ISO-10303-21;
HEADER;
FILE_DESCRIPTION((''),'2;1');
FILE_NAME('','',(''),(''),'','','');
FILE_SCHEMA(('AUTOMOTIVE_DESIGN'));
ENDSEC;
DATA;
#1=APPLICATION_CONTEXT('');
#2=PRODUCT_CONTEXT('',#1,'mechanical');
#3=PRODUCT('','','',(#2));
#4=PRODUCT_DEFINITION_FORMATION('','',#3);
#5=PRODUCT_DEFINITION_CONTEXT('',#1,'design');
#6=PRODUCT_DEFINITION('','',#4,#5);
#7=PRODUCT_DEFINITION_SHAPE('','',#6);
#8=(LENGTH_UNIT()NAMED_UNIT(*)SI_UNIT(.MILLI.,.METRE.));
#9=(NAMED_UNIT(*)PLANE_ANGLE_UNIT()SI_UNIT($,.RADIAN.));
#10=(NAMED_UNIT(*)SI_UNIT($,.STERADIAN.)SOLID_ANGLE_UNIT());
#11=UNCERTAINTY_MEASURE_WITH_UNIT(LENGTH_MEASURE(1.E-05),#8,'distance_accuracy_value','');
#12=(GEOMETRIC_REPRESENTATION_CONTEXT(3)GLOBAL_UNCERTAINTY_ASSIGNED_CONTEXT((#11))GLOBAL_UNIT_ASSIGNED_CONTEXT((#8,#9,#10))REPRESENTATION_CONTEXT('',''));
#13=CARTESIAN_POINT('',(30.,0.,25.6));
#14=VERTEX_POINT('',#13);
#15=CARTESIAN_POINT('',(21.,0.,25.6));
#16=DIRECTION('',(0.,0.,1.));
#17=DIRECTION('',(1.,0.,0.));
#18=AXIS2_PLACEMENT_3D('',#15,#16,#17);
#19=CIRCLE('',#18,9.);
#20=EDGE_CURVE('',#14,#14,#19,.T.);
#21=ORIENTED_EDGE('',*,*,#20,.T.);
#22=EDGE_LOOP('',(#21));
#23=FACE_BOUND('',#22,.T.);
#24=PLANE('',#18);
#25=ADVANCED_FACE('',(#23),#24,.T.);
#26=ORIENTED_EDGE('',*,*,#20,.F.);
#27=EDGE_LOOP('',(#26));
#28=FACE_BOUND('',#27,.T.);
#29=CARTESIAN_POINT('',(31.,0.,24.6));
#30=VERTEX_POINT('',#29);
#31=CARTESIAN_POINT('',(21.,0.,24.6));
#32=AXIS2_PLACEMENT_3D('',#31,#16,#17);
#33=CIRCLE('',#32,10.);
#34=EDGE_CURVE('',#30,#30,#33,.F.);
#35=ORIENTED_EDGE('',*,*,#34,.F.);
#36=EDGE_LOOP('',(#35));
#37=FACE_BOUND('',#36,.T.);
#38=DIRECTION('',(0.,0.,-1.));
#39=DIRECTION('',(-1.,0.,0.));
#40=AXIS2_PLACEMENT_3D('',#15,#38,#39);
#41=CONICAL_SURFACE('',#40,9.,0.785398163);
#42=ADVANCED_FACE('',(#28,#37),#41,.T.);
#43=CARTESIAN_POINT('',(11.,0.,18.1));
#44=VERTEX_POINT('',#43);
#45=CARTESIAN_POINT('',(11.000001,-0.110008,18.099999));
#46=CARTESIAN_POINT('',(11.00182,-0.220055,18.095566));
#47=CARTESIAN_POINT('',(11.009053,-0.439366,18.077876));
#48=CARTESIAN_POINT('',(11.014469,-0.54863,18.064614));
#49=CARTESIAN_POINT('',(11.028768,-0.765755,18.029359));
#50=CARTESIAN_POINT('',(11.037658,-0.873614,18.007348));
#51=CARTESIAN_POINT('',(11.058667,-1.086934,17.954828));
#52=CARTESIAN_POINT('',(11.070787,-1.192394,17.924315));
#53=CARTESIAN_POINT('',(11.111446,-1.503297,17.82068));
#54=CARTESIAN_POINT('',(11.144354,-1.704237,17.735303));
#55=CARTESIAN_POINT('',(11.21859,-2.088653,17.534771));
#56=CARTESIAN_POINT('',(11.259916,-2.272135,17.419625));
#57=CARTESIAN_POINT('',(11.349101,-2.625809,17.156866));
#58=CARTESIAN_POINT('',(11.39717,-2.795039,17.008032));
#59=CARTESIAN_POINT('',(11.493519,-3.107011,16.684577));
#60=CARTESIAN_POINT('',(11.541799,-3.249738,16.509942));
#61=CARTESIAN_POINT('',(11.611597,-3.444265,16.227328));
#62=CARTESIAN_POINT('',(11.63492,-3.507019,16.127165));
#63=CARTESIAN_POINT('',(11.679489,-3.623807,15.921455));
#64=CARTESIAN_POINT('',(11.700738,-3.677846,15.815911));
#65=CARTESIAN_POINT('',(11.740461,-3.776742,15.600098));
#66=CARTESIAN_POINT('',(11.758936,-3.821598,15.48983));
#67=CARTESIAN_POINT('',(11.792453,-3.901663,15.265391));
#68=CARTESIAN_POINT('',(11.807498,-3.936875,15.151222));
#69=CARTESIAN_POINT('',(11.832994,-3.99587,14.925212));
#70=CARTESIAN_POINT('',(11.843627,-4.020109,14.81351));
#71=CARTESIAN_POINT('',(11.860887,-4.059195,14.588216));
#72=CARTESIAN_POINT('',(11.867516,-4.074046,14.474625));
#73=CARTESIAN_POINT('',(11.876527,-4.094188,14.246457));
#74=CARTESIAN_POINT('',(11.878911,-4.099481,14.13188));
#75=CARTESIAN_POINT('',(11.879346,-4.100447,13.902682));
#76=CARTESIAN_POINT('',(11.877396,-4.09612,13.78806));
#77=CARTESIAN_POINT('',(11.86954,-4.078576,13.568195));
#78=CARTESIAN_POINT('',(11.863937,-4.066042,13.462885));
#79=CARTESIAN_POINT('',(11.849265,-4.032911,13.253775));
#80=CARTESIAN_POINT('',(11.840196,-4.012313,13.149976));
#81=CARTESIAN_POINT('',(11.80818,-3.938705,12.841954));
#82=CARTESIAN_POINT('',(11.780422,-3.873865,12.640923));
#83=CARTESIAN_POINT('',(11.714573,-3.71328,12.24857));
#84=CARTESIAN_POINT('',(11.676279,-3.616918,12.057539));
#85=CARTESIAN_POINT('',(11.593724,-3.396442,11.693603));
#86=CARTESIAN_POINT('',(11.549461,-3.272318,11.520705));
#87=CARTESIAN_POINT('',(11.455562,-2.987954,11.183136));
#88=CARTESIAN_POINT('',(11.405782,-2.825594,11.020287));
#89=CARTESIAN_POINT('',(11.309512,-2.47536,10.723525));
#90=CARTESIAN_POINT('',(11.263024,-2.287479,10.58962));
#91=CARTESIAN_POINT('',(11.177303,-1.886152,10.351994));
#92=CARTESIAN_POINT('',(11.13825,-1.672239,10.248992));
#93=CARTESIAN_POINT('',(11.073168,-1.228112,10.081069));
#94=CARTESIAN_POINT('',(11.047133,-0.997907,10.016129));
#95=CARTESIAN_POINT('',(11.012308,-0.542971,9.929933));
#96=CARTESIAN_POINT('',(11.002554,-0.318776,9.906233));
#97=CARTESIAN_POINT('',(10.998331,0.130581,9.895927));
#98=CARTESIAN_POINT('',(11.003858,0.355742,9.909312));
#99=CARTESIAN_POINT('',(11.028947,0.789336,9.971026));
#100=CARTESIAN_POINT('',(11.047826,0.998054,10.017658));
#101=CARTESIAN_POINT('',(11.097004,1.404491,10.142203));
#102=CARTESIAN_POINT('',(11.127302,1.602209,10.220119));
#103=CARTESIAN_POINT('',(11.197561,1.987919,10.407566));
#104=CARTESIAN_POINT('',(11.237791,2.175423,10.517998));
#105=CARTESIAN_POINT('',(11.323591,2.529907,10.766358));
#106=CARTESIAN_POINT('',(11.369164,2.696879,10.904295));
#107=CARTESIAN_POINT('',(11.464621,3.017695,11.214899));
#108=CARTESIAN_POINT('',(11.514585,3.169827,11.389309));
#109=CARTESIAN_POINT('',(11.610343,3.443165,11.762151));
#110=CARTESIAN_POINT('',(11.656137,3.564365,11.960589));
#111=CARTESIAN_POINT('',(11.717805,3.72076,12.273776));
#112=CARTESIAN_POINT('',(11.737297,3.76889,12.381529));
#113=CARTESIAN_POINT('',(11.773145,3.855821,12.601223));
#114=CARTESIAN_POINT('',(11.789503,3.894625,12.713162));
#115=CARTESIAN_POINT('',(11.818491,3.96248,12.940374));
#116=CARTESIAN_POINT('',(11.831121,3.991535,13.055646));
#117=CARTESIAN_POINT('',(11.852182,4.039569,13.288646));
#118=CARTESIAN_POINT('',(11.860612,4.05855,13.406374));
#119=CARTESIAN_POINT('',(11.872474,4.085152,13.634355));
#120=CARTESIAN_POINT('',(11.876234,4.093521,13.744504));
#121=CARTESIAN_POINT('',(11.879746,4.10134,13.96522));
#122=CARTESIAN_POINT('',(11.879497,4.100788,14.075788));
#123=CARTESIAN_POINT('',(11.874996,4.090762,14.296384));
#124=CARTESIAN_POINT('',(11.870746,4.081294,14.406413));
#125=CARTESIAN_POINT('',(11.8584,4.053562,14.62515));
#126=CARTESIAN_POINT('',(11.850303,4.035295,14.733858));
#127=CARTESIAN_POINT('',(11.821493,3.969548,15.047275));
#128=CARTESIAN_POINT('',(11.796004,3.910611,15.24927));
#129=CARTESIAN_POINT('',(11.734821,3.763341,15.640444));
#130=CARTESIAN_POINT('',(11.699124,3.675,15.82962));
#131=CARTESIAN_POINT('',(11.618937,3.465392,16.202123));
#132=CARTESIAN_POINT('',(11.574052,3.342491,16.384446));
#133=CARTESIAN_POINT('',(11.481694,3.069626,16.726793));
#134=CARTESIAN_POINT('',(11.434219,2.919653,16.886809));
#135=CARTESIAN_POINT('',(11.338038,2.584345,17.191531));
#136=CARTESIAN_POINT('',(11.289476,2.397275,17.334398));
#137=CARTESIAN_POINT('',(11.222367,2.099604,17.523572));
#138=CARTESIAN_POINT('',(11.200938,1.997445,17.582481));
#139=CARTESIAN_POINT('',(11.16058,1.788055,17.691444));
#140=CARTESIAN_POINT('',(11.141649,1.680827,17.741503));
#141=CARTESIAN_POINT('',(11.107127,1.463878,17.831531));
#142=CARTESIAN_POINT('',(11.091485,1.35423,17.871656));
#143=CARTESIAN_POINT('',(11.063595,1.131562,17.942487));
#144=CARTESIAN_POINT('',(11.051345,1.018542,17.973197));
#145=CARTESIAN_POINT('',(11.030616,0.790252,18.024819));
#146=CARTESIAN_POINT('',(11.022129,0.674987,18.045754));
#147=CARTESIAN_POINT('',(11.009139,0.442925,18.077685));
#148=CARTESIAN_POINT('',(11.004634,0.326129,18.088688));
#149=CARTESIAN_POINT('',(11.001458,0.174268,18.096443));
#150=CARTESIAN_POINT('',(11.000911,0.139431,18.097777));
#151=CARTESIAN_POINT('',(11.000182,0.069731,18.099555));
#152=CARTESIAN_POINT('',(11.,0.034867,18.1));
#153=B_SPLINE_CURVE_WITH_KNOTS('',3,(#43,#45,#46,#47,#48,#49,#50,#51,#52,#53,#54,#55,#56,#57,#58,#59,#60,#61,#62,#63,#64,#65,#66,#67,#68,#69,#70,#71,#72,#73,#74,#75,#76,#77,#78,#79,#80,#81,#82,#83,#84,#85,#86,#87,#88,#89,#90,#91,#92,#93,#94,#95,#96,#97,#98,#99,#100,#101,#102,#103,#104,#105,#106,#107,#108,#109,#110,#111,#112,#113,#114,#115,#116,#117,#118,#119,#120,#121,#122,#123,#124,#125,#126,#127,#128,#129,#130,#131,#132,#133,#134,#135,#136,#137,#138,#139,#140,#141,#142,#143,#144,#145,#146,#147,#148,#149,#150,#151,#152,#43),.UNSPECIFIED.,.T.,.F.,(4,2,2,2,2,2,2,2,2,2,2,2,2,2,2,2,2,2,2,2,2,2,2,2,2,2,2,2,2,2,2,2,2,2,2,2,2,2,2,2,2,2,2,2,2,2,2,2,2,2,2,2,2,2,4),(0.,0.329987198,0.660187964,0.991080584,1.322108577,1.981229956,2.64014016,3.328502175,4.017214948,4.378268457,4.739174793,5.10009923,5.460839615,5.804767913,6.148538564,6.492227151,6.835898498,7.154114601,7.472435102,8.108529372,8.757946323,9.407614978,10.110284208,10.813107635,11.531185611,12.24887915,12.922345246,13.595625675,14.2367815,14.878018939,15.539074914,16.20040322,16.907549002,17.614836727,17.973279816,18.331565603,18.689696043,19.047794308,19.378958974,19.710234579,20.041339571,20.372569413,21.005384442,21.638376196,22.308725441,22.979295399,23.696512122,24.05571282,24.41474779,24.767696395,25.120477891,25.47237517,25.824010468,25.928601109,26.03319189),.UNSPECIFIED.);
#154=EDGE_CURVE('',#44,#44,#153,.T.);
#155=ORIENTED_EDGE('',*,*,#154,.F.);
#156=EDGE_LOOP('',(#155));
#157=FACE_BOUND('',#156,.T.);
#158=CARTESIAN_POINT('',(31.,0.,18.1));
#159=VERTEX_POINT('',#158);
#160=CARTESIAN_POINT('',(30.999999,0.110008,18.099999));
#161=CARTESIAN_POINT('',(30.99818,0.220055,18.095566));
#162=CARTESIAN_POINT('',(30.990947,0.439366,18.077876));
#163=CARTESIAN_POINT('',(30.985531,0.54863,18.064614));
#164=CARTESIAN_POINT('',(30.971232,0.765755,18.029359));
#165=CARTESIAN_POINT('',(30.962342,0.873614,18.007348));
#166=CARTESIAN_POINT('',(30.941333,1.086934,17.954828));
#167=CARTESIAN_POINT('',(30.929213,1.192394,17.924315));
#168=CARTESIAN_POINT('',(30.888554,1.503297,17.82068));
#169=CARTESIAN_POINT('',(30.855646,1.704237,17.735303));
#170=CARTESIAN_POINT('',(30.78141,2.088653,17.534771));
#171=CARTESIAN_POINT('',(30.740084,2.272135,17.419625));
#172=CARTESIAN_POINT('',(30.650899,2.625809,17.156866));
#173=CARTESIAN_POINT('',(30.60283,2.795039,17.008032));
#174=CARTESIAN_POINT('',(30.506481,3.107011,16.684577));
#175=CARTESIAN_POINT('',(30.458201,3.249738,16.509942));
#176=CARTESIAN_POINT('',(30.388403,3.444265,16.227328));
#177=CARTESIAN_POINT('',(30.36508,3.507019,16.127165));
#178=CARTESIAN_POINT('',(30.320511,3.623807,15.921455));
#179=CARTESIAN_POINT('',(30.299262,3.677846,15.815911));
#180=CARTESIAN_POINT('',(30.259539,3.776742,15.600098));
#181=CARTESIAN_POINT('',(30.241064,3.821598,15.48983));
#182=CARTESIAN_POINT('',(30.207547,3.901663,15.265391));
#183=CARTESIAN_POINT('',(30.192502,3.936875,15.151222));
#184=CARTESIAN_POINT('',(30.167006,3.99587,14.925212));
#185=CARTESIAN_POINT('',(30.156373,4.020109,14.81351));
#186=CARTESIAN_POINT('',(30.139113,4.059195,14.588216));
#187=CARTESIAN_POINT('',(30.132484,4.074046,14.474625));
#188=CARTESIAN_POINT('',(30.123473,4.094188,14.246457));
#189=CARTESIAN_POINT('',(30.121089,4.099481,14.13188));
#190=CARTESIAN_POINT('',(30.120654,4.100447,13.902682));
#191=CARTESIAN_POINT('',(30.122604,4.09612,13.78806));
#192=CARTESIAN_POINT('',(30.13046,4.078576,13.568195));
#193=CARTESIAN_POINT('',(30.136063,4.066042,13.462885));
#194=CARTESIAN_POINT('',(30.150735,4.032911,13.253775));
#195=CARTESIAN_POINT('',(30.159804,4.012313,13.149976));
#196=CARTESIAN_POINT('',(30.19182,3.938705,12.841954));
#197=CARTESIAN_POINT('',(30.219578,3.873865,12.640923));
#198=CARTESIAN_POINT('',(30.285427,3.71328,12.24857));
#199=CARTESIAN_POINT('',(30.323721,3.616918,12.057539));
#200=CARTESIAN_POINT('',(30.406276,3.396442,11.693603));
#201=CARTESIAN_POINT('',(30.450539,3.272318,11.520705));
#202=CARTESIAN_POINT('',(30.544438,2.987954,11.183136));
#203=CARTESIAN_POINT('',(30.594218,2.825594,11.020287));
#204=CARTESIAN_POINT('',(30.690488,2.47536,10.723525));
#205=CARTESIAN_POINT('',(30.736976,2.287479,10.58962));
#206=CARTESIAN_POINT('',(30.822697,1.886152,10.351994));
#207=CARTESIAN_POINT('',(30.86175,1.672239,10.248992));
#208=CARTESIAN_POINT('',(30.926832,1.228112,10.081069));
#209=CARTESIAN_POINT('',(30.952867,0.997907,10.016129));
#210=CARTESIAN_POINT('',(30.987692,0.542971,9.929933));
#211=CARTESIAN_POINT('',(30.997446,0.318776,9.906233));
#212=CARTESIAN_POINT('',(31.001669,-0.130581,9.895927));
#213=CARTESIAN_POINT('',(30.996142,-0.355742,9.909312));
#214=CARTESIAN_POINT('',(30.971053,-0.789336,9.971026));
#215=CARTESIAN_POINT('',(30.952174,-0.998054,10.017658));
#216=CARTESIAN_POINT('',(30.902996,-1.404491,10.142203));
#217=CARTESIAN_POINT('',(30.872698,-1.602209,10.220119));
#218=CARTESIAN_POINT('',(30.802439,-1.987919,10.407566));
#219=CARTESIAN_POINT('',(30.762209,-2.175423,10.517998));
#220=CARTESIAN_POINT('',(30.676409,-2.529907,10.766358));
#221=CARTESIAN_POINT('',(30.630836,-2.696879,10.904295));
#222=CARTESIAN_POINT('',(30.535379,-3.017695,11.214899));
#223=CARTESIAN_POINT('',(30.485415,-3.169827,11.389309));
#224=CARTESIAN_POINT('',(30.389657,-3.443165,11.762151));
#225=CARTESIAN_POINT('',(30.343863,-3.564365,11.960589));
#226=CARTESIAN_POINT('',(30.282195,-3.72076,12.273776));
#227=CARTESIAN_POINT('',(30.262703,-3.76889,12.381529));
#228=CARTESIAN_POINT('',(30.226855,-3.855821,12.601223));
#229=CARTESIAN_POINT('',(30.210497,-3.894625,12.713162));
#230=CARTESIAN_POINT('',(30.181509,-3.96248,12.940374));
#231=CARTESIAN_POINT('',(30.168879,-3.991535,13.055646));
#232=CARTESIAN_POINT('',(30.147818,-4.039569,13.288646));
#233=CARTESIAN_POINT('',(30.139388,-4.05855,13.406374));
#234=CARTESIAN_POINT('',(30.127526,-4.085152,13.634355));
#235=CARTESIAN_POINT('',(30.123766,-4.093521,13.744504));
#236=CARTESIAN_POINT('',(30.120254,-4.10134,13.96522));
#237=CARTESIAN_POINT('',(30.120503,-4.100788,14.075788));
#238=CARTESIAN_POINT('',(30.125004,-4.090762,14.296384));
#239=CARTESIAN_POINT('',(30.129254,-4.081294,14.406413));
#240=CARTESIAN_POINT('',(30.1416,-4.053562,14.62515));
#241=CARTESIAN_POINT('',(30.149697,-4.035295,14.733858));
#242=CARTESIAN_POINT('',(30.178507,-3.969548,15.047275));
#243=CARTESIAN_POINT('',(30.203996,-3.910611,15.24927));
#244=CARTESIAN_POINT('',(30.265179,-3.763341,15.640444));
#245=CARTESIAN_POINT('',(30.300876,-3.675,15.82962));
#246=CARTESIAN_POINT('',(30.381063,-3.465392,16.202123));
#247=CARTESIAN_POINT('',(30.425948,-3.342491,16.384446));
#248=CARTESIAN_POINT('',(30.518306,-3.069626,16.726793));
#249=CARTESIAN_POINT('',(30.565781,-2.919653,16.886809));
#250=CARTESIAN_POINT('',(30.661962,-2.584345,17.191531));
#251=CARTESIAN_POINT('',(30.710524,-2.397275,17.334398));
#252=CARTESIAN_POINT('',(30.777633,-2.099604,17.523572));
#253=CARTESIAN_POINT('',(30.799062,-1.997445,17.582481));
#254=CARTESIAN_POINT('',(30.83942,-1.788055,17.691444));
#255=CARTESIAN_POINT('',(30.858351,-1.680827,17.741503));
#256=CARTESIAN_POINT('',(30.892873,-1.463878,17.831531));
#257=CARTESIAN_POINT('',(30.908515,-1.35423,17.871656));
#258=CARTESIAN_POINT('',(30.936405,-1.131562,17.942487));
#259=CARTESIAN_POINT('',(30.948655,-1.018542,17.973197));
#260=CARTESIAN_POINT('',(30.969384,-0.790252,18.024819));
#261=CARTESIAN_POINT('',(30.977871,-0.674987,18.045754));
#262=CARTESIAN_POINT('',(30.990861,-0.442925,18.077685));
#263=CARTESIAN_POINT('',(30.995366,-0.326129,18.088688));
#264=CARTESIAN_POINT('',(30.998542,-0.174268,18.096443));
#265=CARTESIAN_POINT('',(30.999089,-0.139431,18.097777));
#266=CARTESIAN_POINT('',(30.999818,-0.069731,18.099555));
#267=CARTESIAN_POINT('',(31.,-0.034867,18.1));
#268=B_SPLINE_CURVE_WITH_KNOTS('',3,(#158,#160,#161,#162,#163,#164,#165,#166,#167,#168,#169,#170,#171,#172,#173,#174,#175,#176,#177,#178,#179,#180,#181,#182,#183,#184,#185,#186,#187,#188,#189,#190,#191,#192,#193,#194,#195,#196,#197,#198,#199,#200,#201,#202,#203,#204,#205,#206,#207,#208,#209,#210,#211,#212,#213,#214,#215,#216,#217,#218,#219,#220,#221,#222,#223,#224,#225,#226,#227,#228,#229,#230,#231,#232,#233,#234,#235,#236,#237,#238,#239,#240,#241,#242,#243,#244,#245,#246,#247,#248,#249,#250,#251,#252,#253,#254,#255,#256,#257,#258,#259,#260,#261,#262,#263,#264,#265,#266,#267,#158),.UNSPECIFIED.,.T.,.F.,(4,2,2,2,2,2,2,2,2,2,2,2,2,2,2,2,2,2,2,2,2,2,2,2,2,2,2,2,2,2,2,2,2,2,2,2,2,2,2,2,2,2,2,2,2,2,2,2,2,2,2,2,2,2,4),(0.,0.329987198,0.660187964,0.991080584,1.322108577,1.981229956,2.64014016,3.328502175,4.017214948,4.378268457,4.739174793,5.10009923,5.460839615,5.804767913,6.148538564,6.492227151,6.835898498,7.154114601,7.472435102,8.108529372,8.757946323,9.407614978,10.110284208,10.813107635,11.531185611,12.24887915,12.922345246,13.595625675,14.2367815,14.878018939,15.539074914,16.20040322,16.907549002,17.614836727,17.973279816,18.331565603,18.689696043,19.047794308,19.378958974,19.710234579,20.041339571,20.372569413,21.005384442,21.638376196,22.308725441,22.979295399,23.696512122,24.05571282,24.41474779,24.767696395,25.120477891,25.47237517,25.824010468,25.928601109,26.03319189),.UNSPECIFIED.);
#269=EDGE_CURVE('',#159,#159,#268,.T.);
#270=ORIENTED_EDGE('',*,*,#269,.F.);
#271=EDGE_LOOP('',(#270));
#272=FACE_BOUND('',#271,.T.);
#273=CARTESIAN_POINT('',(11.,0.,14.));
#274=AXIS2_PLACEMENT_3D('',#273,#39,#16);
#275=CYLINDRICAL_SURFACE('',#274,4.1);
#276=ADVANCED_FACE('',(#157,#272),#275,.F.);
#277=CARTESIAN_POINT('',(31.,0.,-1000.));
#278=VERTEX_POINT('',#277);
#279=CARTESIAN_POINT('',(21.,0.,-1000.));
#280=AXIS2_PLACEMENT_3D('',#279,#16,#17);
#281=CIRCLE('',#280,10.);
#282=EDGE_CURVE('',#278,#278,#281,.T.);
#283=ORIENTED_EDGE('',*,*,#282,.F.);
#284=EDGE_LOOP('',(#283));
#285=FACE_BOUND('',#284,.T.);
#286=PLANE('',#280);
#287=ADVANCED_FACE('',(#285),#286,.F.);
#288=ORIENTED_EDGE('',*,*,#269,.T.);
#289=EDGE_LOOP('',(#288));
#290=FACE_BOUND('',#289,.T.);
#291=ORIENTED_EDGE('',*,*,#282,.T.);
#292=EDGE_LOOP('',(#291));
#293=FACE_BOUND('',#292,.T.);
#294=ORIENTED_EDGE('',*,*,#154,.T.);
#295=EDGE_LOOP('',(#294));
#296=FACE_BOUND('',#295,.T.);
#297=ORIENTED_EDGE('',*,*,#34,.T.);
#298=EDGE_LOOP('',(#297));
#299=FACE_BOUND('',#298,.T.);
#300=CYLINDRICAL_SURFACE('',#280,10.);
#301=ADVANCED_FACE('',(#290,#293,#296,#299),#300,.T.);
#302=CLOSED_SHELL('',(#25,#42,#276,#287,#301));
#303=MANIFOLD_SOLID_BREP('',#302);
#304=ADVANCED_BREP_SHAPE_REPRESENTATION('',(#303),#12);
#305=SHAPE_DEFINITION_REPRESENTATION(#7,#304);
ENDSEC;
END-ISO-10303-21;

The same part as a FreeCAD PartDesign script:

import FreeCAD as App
import Part
import Sketcher
from FreeCAD import Vector
Q = App.Units.Quantity


def edges_at(feature, points):
    """Names of the edges that pass closest to the given points."""
    edges = feature.Shape.Edges
    near = lambda p: min(range(len(edges)), key=lambda i: edges[i].distToShape(Part.Vertex(*p))[0])
    return sorted({f"Edge{near(p) + 1}" for p in points})

doc = App.newDocument("Part")
body = doc.addObject("PartDesign::Body", "Body")

# Sketch on XY plane
sketch1 = body.newObject("Sketcher::SketchObject", "Sketch")
sketch1.AttachmentSupport = (doc.getObject("XY_Plane"), [""])
sketch1.MapMode = "FlatFace"
sketch1.addGeometry(Part.Circle(Vector(21, 0, 0), Vector(0, 0, 1), 10), False)
sketch1.addConstraint(Sketcher.Constraint("PointOnObject", 0, 3, -1))
sketch1.addConstraint(Sketcher.Constraint("Diameter", 0, Q("20 mm")))
sketch1.addConstraint(Sketcher.Constraint("DistanceX", -1, 1, 0, 3, Q("21 mm")))
pad1 = body.newObject("PartDesign::Pad", "Pad")
pad1.Profile = sketch1
pad1.Type = "TwoLengths"
pad1.Length = 25.6
pad1.Length2 = 1000

# Sketch on YZ plane
sketch2 = body.newObject("Sketcher::SketchObject", "Sketch001")
sketch2.AttachmentSupport = (doc.getObject("YZ_Plane"), [""])
sketch2.MapMode = "FlatFace"
sketch2.addGeometry(Part.Circle(Vector(0, 14, 0), Vector(0, 0, 1), 4.1), False)
sketch2.addConstraint(Sketcher.Constraint("PointOnObject", 0, 3, -2))
sketch2.addConstraint(Sketcher.Constraint("Diameter", 0, Q("8.2 mm")))
sketch2.addConstraint(Sketcher.Constraint("DistanceY", -1, 1, 0, 3, Q("14 mm")))
pocket1 = body.newObject("PartDesign::Pocket", "Pocket")
pocket1.Profile = sketch2
pocket1.Type = "ThroughAll"
pocket1.Midplane = True
doc.recompute()

chamfer = body.newObject("PartDesign::Chamfer", "Chamfer")
chamfer.Base = (pocket1, edges_at(pocket1, [(11, 0, 25.6)]))
chamfer.Size = 1

doc.recompute()
